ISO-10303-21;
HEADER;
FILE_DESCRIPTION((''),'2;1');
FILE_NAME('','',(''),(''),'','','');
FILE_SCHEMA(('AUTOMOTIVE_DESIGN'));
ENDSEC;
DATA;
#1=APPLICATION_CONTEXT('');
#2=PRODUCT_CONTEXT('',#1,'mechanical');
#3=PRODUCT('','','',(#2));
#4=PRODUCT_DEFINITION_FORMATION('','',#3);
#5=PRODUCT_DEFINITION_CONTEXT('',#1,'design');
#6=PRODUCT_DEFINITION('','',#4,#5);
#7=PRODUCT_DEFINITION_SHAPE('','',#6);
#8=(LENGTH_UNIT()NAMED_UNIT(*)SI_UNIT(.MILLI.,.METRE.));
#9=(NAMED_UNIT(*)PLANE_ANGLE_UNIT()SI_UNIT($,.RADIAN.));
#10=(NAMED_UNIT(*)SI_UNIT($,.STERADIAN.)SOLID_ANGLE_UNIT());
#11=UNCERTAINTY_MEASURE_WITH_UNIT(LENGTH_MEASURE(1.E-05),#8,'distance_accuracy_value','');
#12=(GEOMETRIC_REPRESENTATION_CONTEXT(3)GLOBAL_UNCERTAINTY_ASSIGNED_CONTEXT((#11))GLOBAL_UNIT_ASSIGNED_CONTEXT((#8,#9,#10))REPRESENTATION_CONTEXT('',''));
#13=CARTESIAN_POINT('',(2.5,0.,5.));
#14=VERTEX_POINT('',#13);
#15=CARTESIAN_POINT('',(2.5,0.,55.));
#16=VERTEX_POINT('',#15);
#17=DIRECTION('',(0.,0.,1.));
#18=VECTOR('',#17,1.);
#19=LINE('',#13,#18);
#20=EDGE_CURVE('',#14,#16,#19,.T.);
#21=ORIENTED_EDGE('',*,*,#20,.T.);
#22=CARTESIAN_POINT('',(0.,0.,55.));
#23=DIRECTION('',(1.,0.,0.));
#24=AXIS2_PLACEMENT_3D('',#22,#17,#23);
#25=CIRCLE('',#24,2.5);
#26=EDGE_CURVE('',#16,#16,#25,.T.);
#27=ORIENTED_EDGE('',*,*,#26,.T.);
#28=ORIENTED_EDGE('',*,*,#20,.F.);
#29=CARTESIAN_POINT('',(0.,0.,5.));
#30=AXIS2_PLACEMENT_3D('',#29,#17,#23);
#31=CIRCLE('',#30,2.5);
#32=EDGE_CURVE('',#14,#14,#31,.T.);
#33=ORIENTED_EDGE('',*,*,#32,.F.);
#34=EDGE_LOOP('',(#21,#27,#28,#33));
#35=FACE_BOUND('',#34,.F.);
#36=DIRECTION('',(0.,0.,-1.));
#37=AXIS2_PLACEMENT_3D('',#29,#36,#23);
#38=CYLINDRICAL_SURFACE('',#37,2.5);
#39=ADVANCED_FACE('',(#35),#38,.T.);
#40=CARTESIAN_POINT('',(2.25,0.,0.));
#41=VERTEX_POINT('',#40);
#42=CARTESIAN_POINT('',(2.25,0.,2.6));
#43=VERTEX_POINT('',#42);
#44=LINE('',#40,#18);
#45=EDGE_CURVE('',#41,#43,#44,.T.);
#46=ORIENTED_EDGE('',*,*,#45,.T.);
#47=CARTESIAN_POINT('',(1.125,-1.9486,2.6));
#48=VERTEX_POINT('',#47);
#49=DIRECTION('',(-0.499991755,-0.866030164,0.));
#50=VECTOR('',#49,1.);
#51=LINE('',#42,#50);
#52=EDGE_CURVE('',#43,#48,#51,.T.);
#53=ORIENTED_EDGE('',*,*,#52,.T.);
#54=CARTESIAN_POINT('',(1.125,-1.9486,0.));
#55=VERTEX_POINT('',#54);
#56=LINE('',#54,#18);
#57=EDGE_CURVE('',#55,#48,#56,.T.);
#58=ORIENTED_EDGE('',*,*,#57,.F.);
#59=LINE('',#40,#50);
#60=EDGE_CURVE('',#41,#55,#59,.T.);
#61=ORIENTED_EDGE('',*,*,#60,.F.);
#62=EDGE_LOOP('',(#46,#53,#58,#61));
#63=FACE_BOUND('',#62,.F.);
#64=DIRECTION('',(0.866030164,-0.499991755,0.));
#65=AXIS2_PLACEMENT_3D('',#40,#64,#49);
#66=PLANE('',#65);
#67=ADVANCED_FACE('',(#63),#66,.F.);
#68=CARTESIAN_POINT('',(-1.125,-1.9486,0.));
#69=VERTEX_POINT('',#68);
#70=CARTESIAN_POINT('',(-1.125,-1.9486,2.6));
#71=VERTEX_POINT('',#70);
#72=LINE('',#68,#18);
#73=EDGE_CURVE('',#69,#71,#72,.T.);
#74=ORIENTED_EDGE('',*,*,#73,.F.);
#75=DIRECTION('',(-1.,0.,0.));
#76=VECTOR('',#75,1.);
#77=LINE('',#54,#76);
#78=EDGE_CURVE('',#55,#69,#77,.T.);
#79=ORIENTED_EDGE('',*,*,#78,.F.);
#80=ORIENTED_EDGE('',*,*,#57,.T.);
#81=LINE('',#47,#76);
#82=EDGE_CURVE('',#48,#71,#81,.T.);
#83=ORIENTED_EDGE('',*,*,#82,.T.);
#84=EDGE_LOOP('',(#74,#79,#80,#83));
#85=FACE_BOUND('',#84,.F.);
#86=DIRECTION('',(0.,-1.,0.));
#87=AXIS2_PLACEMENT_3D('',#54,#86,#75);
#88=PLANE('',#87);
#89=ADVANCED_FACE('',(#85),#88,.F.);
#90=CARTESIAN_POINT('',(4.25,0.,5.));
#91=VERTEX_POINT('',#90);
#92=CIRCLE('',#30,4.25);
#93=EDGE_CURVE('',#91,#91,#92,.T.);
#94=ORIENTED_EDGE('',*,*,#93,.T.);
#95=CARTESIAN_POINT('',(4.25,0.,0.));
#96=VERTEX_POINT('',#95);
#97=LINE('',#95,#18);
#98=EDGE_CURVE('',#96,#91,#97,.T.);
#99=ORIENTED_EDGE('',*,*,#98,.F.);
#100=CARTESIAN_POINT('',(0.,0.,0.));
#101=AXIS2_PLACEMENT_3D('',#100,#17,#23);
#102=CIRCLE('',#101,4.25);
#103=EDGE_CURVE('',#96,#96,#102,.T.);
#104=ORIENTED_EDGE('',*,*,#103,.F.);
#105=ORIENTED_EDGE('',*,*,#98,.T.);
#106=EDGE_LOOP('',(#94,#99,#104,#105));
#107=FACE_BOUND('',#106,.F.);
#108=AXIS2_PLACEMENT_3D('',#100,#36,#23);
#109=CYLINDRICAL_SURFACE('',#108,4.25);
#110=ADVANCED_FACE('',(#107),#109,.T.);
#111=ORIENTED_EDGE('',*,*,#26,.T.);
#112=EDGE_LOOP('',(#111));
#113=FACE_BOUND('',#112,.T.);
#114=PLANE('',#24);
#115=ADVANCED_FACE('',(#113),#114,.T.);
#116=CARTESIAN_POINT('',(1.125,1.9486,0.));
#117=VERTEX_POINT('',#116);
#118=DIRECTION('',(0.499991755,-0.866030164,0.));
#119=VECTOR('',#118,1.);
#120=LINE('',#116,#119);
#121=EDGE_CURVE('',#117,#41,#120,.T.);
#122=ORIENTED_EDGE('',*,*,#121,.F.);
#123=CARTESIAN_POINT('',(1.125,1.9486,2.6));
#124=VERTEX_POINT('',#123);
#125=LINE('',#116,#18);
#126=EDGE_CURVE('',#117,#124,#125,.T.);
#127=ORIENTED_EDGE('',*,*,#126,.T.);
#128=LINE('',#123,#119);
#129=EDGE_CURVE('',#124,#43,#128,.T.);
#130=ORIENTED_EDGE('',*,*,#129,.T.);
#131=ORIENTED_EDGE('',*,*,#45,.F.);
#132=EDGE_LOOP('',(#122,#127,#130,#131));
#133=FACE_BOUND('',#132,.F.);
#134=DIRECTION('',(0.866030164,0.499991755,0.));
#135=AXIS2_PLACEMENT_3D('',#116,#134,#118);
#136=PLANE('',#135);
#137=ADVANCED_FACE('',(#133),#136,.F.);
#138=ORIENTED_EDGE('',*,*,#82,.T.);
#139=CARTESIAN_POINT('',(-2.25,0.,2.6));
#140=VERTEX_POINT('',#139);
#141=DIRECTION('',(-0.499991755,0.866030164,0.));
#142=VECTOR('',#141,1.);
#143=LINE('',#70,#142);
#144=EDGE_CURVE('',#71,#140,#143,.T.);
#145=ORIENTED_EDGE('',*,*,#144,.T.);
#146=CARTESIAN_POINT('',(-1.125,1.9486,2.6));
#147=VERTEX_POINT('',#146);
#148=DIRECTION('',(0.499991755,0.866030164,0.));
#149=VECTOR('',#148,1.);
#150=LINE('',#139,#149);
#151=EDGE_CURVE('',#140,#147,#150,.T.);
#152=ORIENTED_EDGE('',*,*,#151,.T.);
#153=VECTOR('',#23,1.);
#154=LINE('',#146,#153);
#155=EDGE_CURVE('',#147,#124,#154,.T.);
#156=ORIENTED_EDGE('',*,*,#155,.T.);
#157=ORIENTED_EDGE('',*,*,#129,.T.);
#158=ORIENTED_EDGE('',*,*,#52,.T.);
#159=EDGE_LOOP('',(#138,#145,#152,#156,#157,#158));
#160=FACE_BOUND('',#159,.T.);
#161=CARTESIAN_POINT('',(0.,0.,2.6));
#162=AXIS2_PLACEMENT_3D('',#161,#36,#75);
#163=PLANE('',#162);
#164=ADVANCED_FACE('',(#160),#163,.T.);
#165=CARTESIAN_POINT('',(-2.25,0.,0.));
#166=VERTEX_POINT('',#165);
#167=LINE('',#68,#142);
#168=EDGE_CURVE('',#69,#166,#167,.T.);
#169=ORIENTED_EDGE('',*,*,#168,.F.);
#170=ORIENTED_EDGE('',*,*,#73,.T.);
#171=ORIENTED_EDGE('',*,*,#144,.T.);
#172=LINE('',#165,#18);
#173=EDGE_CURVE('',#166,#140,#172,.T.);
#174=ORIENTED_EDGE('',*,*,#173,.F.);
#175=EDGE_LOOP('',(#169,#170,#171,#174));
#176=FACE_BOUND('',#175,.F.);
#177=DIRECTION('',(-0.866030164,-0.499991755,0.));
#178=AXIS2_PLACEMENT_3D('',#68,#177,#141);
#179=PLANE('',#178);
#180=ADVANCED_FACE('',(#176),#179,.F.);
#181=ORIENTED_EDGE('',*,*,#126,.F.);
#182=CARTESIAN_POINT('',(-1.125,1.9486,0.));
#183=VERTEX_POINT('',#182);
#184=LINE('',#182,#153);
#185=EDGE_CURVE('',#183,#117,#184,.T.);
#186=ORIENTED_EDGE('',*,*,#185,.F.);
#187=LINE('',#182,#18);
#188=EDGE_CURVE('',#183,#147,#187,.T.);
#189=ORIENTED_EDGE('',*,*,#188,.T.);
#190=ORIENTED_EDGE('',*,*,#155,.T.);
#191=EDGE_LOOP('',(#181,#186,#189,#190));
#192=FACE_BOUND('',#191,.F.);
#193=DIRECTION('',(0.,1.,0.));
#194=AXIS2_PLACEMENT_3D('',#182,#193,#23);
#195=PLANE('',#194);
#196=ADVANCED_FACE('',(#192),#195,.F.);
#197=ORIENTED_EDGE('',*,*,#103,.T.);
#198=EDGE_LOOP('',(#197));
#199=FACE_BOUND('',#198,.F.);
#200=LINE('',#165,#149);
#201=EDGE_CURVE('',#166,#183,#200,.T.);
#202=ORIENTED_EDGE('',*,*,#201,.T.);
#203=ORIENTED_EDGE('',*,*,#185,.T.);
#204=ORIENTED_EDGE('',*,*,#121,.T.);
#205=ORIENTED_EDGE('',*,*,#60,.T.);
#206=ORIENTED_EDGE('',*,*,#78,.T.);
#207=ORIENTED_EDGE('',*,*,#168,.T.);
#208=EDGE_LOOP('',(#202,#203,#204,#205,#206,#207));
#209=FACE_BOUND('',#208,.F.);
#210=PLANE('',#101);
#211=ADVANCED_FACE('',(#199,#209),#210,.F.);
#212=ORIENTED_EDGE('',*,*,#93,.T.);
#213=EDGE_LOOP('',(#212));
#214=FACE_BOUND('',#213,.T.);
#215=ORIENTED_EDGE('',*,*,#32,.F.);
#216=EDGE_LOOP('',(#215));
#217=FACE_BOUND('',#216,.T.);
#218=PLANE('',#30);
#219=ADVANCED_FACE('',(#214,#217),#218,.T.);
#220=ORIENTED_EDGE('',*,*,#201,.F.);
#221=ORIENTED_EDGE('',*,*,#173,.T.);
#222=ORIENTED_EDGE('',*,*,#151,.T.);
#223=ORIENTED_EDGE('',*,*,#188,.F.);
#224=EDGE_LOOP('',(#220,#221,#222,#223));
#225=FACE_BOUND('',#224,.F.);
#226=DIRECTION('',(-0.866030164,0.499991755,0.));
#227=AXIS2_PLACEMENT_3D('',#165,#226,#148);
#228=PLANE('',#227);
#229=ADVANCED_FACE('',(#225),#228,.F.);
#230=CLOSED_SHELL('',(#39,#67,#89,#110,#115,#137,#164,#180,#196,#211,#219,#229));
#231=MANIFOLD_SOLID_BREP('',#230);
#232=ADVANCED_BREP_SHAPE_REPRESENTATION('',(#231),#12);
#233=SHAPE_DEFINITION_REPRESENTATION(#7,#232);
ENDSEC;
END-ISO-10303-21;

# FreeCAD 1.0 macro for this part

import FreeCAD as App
import Part
import Sketcher

V = App.Vector
Q = App.Units.Quantity

doc = App.newDocument("Part")
body = doc.addObject("PartDesign::Body", "Body")

sketch1 = doc.addObject("Sketcher::SketchObject", "Sketch")
body.addObject(sketch1)
sketch1.AttachmentSupport = (doc.XY_Plane, [""])
sketch1.MapMode = "FlatFace"
sketch1.addGeometry(Part.Circle(V(0, 0, 0), V(0, 0, 1), 4.2), False)
sketch1.addConstraint([
    Sketcher.Constraint("Coincident", 0, 3, -1, 1),
    Sketcher.Constraint("Diameter", 0, Q("8.5 mm")),
])
pad1 = doc.addObject("PartDesign::Pad", "Pad")
body.addObject(pad1)
pad1.Profile = sketch1
pad1.Length = 5

sketch2 = doc.addObject("Sketcher::SketchObject", "Sketch001")
body.addObject(sketch2)
sketch2.AttachmentSupport = (doc.XY_Plane, [""])
sketch2.MapMode = "FlatFace"
sketch2.AttachmentOffset = App.Placement(V(0, 0, 5), App.Rotation())
sketch2.addGeometry(Part.Circle(V(0, 0, 0), V(0, 0, 1), 2.5), False)
sketch2.addConstraint([
    Sketcher.Constraint("Coincident", 0, 3, -1, 1),
    Sketcher.Constraint("Diameter", 0, Q("5 mm")),
])
pad2 = doc.addObject("PartDesign::Pad", "Pad001")
body.addObject(pad2)
pad2.Profile = sketch2
pad2.Length = 50

sketch3 = doc.addObject("Sketcher::SketchObject", "Sketch002")
body.addObject(sketch3)
sketch3.AttachmentSupport = (doc.XY_Plane, [""])
sketch3.MapMode = "FlatFace"
sketch3.addGeometry([
    Part.LineSegment(V(-1.1, -1.9, 0), V(-2.2, 0, 0)),
    Part.LineSegment(V(-2.2, 0, 0), V(-1.1, 1.9, 0)),
    Part.LineSegment(V(-1.1, 1.9, 0), V(1.1, 1.9, 0)),
    Part.LineSegment(V(1.1, 1.9, 0), V(2.2, 0, 0)),
    Part.LineSegment(V(2.2, 0, 0), V(1.1, -1.9, 0)),
    Part.LineSegment(V(1.1, -1.9, 0), V(-1.1, -1.9, 0)),
], False)
sketch3.addConstraint([
    Sketcher.Constraint("Coincident", 0, 2, 1, 1),
    Sketcher.Constraint("Coincident", 1, 2, 2, 1),
    Sketcher.Constraint("Coincident", 2, 2, 3, 1),
    Sketcher.Constraint("Coincident", 3, 2, 4, 1),
    Sketcher.Constraint("Coincident", 4, 2, 5, 1),
    Sketcher.Constraint("Coincident", 5, 2, 0, 1),
    Sketcher.Constraint("Horizontal", 2),
    Sketcher.Constraint("Horizontal", 5),
    Sketcher.Constraint("Symmetric", 0, 2, 3, 2, -1, 1),
    Sketcher.Constraint("Symmetric", 1, 2, 4, 2, -1, 1),
    Sketcher.Constraint("PointOnObject", 0, 2, -1),
    Sketcher.Constraint("Parallel", 0, 3),
    Sketcher.Constraint("Vertical", 2, 2, 4, 2),
    Sketcher.Constraint("Angle", 0, Q("119.9995 deg")),
    Sketcher.Constraint("DistanceX", 2, 1, 2, 2, Q("2.25 mm")),
    Sketcher.Constraint("DistanceX", 0, 2, 3, 2, Q("4.5 mm")),
])
pocket1 = doc.addObject("PartDesign::Pocket", "Pocket")
body.addObject(pocket1)
pocket1.Profile = sketch3
pocket1.Length = 2.6
pocket1.Reversed = True

doc.recompute()
